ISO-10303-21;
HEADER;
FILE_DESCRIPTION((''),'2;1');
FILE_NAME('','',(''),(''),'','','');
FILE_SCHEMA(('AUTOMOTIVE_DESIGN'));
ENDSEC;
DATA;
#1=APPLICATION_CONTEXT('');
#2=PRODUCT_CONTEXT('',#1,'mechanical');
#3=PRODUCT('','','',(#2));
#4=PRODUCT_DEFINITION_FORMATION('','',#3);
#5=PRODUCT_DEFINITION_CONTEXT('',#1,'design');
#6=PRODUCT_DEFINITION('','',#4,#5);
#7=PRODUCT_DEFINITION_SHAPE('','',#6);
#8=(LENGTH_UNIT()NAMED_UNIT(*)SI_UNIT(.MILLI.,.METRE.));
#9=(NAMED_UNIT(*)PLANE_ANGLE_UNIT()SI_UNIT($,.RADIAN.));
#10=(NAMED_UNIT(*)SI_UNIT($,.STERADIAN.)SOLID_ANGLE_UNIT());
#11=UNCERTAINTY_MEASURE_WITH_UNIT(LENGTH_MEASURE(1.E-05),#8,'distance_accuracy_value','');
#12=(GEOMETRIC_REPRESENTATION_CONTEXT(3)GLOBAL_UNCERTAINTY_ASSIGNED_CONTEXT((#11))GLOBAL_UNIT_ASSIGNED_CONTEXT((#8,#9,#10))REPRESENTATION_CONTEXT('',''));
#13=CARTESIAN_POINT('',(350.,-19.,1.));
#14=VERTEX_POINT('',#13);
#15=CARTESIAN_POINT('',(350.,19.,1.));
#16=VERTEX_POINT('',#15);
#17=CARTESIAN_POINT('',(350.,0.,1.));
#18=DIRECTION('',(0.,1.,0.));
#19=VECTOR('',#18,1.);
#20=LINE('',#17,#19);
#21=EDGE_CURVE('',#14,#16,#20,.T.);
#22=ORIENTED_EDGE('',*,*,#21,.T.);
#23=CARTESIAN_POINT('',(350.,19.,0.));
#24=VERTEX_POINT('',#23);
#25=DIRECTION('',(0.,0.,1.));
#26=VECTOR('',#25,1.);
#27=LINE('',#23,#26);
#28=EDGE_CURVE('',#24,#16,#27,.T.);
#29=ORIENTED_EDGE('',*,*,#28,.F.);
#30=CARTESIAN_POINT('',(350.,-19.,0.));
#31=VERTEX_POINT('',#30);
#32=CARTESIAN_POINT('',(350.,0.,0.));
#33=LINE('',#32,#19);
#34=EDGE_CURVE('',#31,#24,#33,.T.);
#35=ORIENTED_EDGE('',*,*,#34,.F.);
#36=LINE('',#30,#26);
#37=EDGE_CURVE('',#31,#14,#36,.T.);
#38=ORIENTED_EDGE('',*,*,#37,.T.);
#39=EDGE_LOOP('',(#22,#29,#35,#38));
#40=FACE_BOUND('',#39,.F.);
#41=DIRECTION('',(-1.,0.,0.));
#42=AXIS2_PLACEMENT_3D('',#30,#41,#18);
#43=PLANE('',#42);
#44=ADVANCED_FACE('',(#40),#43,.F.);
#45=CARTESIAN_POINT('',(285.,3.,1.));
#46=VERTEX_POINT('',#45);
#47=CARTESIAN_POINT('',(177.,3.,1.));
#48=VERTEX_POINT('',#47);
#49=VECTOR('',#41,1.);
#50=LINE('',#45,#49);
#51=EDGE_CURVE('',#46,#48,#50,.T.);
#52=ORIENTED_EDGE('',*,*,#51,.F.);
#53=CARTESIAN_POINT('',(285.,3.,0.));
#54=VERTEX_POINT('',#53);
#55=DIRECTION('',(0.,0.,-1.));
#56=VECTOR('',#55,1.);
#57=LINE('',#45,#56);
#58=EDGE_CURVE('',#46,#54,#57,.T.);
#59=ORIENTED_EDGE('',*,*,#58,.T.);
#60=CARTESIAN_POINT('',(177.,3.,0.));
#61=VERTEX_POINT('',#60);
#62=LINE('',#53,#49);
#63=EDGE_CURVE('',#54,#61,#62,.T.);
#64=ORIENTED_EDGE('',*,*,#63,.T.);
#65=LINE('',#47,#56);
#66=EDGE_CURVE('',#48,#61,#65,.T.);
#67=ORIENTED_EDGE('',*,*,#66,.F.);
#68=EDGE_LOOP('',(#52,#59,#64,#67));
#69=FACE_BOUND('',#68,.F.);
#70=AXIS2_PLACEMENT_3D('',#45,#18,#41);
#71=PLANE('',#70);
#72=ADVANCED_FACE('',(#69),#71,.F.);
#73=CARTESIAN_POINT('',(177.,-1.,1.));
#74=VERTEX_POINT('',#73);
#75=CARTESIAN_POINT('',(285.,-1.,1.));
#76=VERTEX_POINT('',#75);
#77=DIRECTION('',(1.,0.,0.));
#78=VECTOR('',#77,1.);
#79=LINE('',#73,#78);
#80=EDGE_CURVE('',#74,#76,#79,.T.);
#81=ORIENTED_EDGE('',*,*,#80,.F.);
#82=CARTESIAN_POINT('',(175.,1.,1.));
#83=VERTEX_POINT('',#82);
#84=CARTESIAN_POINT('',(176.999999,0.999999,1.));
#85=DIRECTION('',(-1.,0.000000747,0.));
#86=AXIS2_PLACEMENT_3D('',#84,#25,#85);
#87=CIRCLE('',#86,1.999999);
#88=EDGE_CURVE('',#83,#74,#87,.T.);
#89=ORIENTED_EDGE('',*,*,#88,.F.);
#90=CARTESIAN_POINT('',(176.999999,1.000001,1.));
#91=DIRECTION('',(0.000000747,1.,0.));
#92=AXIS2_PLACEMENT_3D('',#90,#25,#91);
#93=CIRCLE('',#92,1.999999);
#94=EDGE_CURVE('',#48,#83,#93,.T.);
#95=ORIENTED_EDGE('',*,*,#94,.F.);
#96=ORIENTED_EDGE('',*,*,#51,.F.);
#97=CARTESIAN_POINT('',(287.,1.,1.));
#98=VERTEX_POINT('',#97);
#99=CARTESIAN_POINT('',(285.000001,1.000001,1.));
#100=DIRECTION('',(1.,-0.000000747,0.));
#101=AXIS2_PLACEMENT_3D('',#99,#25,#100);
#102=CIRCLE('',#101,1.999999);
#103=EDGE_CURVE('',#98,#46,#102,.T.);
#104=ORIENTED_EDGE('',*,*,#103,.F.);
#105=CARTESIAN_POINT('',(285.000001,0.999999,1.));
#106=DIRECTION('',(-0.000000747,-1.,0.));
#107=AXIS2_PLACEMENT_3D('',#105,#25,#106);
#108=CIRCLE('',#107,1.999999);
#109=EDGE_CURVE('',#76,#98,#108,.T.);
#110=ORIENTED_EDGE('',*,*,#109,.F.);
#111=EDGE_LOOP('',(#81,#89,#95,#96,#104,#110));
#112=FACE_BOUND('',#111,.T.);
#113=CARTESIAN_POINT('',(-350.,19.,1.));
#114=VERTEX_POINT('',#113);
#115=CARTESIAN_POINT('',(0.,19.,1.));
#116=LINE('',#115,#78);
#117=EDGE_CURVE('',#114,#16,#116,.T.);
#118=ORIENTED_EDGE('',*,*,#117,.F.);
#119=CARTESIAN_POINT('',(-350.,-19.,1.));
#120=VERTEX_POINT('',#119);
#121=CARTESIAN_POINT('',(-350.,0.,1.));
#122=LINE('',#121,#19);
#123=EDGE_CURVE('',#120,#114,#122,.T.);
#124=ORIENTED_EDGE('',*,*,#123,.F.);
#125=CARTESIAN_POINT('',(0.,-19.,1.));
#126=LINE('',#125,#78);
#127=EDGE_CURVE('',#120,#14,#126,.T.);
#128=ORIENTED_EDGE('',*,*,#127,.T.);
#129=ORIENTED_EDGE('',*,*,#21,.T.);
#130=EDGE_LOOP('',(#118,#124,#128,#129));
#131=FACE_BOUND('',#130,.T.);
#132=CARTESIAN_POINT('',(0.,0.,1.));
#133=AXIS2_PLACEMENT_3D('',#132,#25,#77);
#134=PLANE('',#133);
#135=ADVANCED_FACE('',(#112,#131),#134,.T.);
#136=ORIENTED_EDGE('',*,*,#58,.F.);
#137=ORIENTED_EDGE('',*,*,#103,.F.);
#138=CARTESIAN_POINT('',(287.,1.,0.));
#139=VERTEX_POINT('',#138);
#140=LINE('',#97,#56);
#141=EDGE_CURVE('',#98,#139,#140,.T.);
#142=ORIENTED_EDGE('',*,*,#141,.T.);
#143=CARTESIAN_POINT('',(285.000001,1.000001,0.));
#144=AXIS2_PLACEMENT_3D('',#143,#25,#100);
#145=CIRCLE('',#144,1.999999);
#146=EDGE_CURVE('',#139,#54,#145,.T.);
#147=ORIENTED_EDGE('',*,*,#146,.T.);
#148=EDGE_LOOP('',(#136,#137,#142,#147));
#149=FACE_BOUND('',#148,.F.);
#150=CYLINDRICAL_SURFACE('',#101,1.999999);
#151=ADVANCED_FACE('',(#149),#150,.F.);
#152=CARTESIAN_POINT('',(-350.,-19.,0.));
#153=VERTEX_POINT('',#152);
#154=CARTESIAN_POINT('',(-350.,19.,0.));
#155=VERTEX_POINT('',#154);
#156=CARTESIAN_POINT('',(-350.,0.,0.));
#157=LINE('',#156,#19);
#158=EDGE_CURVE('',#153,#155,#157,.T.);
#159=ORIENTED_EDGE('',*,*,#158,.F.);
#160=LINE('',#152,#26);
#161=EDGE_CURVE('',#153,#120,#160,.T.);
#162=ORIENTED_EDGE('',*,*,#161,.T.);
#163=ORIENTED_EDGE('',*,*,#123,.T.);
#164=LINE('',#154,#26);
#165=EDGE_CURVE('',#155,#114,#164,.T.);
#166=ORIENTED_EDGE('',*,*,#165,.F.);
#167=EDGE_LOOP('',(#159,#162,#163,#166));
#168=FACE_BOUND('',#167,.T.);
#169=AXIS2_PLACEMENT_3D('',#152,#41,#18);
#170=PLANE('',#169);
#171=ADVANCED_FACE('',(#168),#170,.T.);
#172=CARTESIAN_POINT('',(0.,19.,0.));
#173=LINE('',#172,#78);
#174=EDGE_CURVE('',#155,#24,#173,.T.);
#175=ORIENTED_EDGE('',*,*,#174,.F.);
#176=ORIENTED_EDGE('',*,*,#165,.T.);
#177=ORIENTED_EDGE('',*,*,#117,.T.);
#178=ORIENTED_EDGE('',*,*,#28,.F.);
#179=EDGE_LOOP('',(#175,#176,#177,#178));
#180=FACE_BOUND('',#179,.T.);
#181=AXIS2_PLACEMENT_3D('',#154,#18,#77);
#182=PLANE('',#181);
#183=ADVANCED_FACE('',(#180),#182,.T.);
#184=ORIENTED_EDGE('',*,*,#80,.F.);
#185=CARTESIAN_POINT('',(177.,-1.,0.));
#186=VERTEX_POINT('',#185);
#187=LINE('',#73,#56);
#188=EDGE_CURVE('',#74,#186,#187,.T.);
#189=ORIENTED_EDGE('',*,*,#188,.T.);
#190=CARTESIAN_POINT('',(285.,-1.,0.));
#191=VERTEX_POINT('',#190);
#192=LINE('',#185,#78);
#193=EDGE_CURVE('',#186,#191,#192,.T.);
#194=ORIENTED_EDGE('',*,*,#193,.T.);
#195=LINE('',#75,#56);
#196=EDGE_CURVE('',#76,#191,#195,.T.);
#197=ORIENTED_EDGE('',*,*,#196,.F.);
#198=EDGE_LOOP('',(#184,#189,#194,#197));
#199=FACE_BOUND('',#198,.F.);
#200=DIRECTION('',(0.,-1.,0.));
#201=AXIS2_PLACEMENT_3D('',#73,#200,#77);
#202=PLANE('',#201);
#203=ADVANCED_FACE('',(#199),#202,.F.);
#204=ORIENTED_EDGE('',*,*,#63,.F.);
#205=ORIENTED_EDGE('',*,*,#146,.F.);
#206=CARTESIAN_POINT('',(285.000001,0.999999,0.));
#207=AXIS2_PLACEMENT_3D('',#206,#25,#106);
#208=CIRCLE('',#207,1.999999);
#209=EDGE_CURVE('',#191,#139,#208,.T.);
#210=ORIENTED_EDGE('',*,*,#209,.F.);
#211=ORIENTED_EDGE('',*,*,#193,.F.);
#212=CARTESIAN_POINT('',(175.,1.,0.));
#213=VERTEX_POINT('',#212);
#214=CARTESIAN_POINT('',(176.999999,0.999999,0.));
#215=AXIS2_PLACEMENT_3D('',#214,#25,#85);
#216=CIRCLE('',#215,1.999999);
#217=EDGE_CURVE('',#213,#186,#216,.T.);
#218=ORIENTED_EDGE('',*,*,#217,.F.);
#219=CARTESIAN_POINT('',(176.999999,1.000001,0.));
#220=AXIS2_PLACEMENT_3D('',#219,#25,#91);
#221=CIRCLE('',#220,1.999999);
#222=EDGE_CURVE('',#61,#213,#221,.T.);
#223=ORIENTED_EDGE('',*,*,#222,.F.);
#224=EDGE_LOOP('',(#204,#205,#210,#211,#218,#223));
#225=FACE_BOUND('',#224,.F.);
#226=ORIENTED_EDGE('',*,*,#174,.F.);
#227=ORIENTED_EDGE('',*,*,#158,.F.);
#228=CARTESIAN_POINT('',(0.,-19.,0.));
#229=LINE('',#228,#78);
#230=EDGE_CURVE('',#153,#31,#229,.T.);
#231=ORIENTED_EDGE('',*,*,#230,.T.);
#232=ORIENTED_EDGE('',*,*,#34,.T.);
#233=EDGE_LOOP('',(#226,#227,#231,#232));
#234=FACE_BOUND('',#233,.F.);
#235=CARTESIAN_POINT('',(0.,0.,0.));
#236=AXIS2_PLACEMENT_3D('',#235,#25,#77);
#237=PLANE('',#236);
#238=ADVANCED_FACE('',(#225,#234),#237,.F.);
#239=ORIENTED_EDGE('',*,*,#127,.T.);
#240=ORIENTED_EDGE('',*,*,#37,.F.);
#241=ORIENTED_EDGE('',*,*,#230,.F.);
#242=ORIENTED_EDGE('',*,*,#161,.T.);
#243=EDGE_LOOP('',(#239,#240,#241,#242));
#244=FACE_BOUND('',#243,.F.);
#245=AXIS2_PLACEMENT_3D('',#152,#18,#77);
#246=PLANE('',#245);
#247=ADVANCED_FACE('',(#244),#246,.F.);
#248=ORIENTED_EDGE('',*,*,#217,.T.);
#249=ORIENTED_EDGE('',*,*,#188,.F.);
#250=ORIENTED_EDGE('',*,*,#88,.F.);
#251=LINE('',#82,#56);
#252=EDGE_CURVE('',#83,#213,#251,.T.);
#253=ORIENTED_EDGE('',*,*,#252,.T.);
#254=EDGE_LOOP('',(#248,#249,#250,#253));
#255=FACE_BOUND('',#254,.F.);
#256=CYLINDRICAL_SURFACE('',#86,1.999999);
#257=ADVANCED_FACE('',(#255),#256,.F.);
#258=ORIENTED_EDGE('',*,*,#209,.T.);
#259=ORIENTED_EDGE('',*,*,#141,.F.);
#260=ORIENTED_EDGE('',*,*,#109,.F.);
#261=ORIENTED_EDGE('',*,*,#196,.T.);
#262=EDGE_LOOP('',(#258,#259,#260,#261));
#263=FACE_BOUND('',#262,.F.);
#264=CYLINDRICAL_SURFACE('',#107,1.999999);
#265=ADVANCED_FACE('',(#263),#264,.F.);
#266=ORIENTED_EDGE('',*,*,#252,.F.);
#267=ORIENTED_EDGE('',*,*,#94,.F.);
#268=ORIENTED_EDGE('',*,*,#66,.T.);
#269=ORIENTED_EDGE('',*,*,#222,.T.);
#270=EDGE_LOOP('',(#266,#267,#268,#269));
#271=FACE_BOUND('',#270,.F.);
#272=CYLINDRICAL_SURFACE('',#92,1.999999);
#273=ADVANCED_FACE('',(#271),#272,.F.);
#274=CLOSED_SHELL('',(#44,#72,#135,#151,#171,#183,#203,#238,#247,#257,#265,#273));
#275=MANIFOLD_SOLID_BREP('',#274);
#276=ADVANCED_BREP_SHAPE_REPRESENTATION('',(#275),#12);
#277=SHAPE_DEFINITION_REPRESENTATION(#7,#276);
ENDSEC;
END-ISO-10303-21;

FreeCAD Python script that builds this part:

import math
import FreeCAD as App
import Part
import Sketcher

V = App.Vector
Q = App.Units.Quantity


def add_polygon(sketch, points):
    """Adds a closed chain of lines whose ends are joined by coincident constraints."""
    first, n = sketch.GeometryCount, len(points)
    for a, b in zip(points, points[1:] + points[:1]):
        sketch.addGeometry(Part.LineSegment(App.Vector(*a, 0), App.Vector(*b, 0)), False)
    for i in range(n):
        sketch.addConstraint(Sketcher.Constraint("Coincident", first + i, 2, first + (i + 1) % n, 1))

doc = App.newDocument("Part")
body = doc.addObject("PartDesign::Body", "Body")

sketch1 = body.newObject("Sketcher::SketchObject", "Sketch")
sketch1.AttachmentSupport = (doc.getObject("XY_Plane"), [""])
sketch1.MapMode = "FlatFace"
add_polygon(sketch1, [(-350, 19), (-350, -19), (350, -19), (350, 19)])
sketch1.addConstraint(Sketcher.Constraint("Vertical", 0))
sketch1.addConstraint(Sketcher.Constraint("Horizontal", 1))
sketch1.addConstraint(Sketcher.Constraint("Vertical", 2))
sketch1.addConstraint(Sketcher.Constraint("Horizontal", 3))
sketch1.addConstraint(Sketcher.Constraint("Symmetric", 0, 2, 2, 2, -1, 1))
sketch1.addConstraint(Sketcher.Constraint("DistanceX", 1, 1, 1, 2, Q("700 mm")))
sketch1.addConstraint(Sketcher.Constraint("DistanceY", 0, 2, 0, 1, Q("38 mm")))
pad1 = body.newObject("PartDesign::Pad", "Pad")
pad1.Profile = sketch1
pad1.Length = 1

sketch2 = body.newObject("Sketcher::SketchObject", "Sketch001")
sketch2.AttachmentSupport = (doc.getObject("XY_Plane"), [""])
sketch2.MapMode = "FlatFace"
sketch2.AttachmentOffset = App.Placement(V(0, 0, 1), App.Rotation())
sketch2.addGeometry(Part.LineSegment(V(285, 3, 0), V(177, 3, 0)), False)
sketch2.addGeometry(Part.ArcOfCircle(Part.Circle(V(177, 1, 0), V(0, 0, 1), 2), math.radians(90), math.radians(180)), False)
sketch2.addGeometry(Part.ArcOfCircle(Part.Circle(V(177, 1, 0), V(0, 0, 1), 2), math.radians(180), math.radians(270)), False)
sketch2.addGeometry(Part.LineSegment(V(177, -1, 0), V(285, -1, 0)), False)
sketch2.addGeometry(Part.ArcOfCircle(Part.Circle(V(285, 1, 0), V(0, 0, 1), 2), math.radians(-90), math.radians(0)), False)
sketch2.addGeometry(Part.ArcOfCircle(Part.Circle(V(285, 1, 0), V(0, 0, 1), 2), math.radians(0), math.radians(90)), False)
sketch2.addConstraint(Sketcher.Constraint("Tangent", 0, 2, 1, 1))
sketch2.addConstraint(Sketcher.Constraint("Tangent", 1, 2, 2, 1))
sketch2.addConstraint(Sketcher.Constraint("Tangent", 2, 2, 3, 1))
sketch2.addConstraint(Sketcher.Constraint("Tangent", 3, 2, 4, 1))
sketch2.addConstraint(Sketcher.Constraint("Tangent", 4, 2, 5, 1))
sketch2.addConstraint(Sketcher.Constraint("Tangent", 5, 2, 0, 1))
sketch2.addConstraint(Sketcher.Constraint("Horizontal", 0))
sketch2.addConstraint(Sketcher.Constraint("Horizontal", 3))
sketch2.addConstraint(Sketcher.Constraint("Equal", 1, 2))
sketch2.addConstraint(Sketcher.Constraint("Equal", 2, 4))
sketch2.addConstraint(Sketcher.Constraint("Horizontal", 5, 3, 1, 2))
sketch2.addConstraint(Sketcher.Constraint("Horizontal", 1, 2, 4, 2))
sketch2.addConstraint(Sketcher.Constraint("Radius", 1, Q("1.999999 mm")))
sketch2.addConstraint(Sketcher.Constraint("DistanceX", 0, 2, 0, 1, Q("108 mm")))
sketch2.addConstraint(Sketcher.Constraint("DistanceX", -1, 1, 1, 3, Q("176.999999 mm")))
sketch2.addConstraint(Sketcher.Constraint("DistanceY", -1, 1, 1, 3, Q("1.000001 mm")))
pocket1 = body.newObject("PartDesign::Pocket", "Pocket")
pocket1.Profile = sketch2
pocket1.Length = 1

doc.recompute()
